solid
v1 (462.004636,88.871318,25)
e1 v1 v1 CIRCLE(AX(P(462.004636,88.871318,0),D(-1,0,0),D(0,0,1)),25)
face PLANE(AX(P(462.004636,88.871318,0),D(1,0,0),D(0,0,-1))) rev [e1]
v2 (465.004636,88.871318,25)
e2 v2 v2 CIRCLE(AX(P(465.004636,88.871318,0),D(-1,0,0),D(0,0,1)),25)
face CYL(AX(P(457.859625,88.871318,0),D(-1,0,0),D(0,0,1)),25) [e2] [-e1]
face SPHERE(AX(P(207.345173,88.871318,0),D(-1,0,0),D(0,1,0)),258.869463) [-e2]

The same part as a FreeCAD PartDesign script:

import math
import FreeCAD as App
import Part
import Sketcher

doc = App.newDocument("Part")
params = doc.addObject("Spreadsheet::Sheet", "Params")
for row, (alias, value) in enumerate([
    ("sketch1_width", "3 mm"),
    ("sketch1_height", "25 mm"),
    ("sketch1_width2", "4.21 mm"),
    ("revolution_angle", "360 deg"),
], start=1):
    params.set(f"A{row}", alias)
    params.set(f"B{row}", "=" + value)
    params.setAlias(f"B{row}", alias)

body = doc.addObject("PartDesign::Body", "Body")

# Sketch on XY plane
sketch1 = doc.addObject("Sketcher::SketchObject", "Sketch")
body.addObject(sketch1)
sketch1.AttachmentSupport = (doc.XY_Plane, [""])
sketch1.MapMode = "FlatFace"
sketch1.addGeometry([
    Part.LineSegment(App.Vector(462, 113.9, 0), App.Vector(462, 88.9, 0)),
    Part.LineSegment(App.Vector(462, 88.9, 0), App.Vector(466.2, 88.9, 0)),
    Part.ArcOfCircle(Part.Circle(App.Vector(207.3, 88.9, 0), App.Vector(0, 0, 1), 258.9), math.radians(0), math.radians(5.54)),
    Part.LineSegment(App.Vector(465, 113.9, 0), App.Vector(462, 113.9, 0)),
], False)
sketch1.addGeometry(Part.LineSegment(App.Vector(207.3, 88.9, 0), App.Vector(466.2, 88.9, 0)), True)  # axis
sketch1.addConstraint([
    Sketcher.Constraint("Coincident", 0, 2, 1, 1),
    Sketcher.Constraint("Coincident", 1, 2, 2, 1),
    Sketcher.Constraint("Coincident", 2, 2, 3, 1),
    Sketcher.Constraint("Coincident", 3, 2, 0, 1),
    Sketcher.Constraint("Vertical", 0),
    Sketcher.Constraint("Horizontal", 1),
    Sketcher.Constraint("Horizontal", 3),
    Sketcher.Constraint("Horizontal", 4),
    Sketcher.Constraint("Coincident", 4, 1, 2, 3),
    Sketcher.Constraint("Coincident", 4, 2, 1, 2),
    Sketcher.Constraint("DistanceX", 3, 2, 3, 1, 3.0),
    Sketcher.Constraint("DistanceY", 0, 2, 0, 1, 25.0),
    Sketcher.Constraint("DistanceX", 1, 1, 1, 2, 4.21),
    Sketcher.Constraint("DistanceY", -1, 1, 2, 3, 88.871318),
    Sketcher.Constraint("DistanceX", -1, 1, 2, 3, 207.345173),
])
sketch1.setExpression("Constraints[10]", "Params.sketch1_width")
sketch1.setExpression("Constraints[11]", "Params.sketch1_height")
sketch1.setExpression("Constraints[12]", "Params.sketch1_width2")
revolution = doc.addObject("PartDesign::Revolution", "Revolution")
body.addObject(revolution)
revolution.Profile = sketch1
revolution.ReferenceAxis = (sketch1, ["Axis0"])
revolution.setExpression("Angle", "Params.revolution_angle")

doc.recompute()
